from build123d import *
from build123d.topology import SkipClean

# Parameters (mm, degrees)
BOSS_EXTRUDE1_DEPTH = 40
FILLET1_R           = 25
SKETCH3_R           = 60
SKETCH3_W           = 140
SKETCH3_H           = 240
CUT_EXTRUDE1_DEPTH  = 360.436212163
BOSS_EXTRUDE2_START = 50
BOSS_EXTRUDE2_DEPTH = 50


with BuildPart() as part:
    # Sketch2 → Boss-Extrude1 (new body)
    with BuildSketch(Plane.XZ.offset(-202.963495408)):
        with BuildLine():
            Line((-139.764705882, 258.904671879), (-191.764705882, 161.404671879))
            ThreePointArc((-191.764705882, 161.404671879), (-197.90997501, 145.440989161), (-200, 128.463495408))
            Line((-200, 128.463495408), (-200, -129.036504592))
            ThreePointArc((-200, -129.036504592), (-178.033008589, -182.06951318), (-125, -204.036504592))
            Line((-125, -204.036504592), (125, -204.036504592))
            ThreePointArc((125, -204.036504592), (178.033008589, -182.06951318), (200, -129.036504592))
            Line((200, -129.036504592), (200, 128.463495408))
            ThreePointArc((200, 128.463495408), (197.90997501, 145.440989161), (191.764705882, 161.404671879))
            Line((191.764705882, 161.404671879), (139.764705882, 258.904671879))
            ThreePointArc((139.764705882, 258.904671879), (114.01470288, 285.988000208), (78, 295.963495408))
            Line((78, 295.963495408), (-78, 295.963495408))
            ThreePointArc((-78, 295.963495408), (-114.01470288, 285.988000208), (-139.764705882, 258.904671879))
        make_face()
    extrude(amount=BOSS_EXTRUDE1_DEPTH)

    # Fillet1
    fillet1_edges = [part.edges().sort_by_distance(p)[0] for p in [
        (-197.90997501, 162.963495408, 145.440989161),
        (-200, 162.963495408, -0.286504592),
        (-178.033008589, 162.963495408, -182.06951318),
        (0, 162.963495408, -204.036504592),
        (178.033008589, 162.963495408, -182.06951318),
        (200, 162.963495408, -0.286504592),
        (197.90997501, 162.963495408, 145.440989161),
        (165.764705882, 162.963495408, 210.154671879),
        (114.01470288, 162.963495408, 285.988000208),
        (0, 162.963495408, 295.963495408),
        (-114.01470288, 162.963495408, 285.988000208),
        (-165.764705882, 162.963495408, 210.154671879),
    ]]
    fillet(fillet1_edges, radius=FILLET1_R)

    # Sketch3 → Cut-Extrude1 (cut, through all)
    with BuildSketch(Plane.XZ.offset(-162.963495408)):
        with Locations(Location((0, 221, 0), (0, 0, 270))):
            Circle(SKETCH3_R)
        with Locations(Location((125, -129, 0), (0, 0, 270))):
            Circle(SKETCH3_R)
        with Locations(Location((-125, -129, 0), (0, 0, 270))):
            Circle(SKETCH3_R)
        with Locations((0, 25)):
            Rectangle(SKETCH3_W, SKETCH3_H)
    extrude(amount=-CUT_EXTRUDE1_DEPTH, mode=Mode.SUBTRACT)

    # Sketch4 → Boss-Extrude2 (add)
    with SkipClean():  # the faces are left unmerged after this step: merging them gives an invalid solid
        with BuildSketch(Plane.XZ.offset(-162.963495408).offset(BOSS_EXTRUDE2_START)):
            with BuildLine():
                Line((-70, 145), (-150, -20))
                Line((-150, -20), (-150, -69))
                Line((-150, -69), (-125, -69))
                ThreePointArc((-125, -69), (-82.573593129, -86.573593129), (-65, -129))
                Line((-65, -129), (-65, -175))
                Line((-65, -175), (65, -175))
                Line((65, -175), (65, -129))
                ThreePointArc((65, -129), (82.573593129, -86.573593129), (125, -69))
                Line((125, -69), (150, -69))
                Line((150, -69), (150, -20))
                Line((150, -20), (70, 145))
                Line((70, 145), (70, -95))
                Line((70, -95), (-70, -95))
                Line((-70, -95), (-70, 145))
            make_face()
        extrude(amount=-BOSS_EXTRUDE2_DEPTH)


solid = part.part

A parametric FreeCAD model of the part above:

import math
import FreeCAD as App
import Part
import Sketcher

V = App.Vector
Q = App.Units.Quantity


def edges_at(feature, points):
    """Names of the edges that pass closest to the given points."""
    edges = feature.Shape.Edges
    near = lambda p: min(range(len(edges)), key=lambda i: edges[i].distToShape(Part.Vertex(*p))[0])
    return sorted({f"Edge{near(p) + 1}" for p in points})

doc = App.newDocument("Part")
body = doc.addObject("PartDesign::Body", "Body")

sketch1 = body.newObject("Sketcher::SketchObject", "Sketch")
sketch1.AttachmentSupport = (doc.getObject("XZ_Plane"), [""])
sketch1.MapMode = "FlatFace"
sketch1.AttachmentOffset = App.Placement(V(0, 0, -202.963495), App.Rotation())
sketch1.addGeometry(Part.LineSegment(V(-140, 259, 0), V(-192, 161, 0)), False)
sketch1.addGeometry(Part.ArcOfCircle(Part.Circle(V(-130, 128, 0), V(0, 0, 1), 70), math.radians(152), math.radians(180)), False)
sketch1.addGeometry(Part.LineSegment(V(-200, 128, 0), V(-200, -129, 0)), False)
sketch1.addGeometry(Part.ArcOfCircle(Part.Circle(V(-125, -129, 0), V(0, 0, 1), 75), math.radians(-180), math.radians(-90)), False)
sketch1.addGeometry(Part.LineSegment(V(-125, -204, 0), V(125, -204, 0)), False)
sketch1.addGeometry(Part.ArcOfCircle(Part.Circle(V(125, -129, 0), V(0, 0, 1), 75), math.radians(-90), math.radians(0)), False)
sketch1.addGeometry(Part.LineSegment(V(200, -129, 0), V(200, 128, 0)), False)
sketch1.addGeometry(Part.ArcOfCircle(Part.Circle(V(130, 128, 0), V(0, 0, 1), 70), math.radians(0), math.radians(28)), False)
sketch1.addGeometry(Part.LineSegment(V(192, 161, 0), V(140, 259, 0)), False)
sketch1.addGeometry(Part.ArcOfCircle(Part.Circle(V(78, 226, 0), V(0, 0, 1), 70), math.radians(28), math.radians(90)), False)
sketch1.addGeometry(Part.LineSegment(V(78, 296, 0), V(-78, 296, 0)), False)
sketch1.addGeometry(Part.ArcOfCircle(Part.Circle(V(-78, 226, 0), V(0, 0, 1), 70), math.radians(90), math.radians(152)), False)
sketch1.addConstraint(Sketcher.Constraint("Tangent", 0, 2, 1, 1))
sketch1.addConstraint(Sketcher.Constraint("Tangent", 1, 2, 2, 1))
sketch1.addConstraint(Sketcher.Constraint("Tangent", 2, 2, 3, 1))
sketch1.addConstraint(Sketcher.Constraint("Tangent", 3, 2, 4, 1))
sketch1.addConstraint(Sketcher.Constraint("Tangent", 4, 2, 5, 1))
sketch1.addConstraint(Sketcher.Constraint("Tangent", 5, 2, 6, 1))
sketch1.addConstraint(Sketcher.Constraint("Tangent", 6, 2, 7, 1))
sketch1.addConstraint(Sketcher.Constraint("Tangent", 7, 2, 8, 1))
sketch1.addConstraint(Sketcher.Constraint("Tangent", 8, 2, 9, 1))
sketch1.addConstraint(Sketcher.Constraint("Tangent", 9, 2, 10, 1))
sketch1.addConstraint(Sketcher.Constraint("Tangent", 10, 2, 11, 1))
sketch1.addConstraint(Sketcher.Constraint("Tangent", 11, 2, 0, 1))
sketch1.addConstraint(Sketcher.Constraint("Vertical", 2))
sketch1.addConstraint(Sketcher.Constraint("Horizontal", 4))
sketch1.addConstraint(Sketcher.Constraint("Vertical", 6))
sketch1.addConstraint(Sketcher.Constraint("Horizontal", 10))
sketch1.addConstraint(Sketcher.Constraint("Equal", 3, 5))
sketch1.addConstraint(Sketcher.Constraint("Equal", 1, 7))
sketch1.addConstraint(Sketcher.Constraint("Equal", 7, 9))
sketch1.addConstraint(Sketcher.Constraint("Equal", 9, 11))
sketch1.addConstraint(Sketcher.Constraint("Symmetric", 1, 3, 7, 3, -2))
sketch1.addConstraint(Sketcher.Constraint("Horizontal", 0, 2, 7, 2))
sketch1.addConstraint(Sketcher.Constraint("Radius", 1, Q("70 mm")))
sketch1.addConstraint(Sketcher.Constraint("Radius", 3, Q("75 mm")))
sketch1.addConstraint(Sketcher.Constraint("DistanceX", 4, 1, 4, 2, Q("250 mm")))
sketch1.addConstraint(Sketcher.Constraint("DistanceX", 10, 2, 10, 1, Q("156 mm")))
sketch1.addConstraint(Sketcher.Constraint("DistanceY", 2, 2, 2, 1, Q("257.5 mm")))
sketch1.addConstraint(Sketcher.Constraint("DistanceY", 5, 3, 9, 3, Q("355 mm")))
sketch1.addConstraint(Sketcher.Constraint("DistanceY", -1, 1, 0, 2, Q("161.404672 mm")))
pad1 = body.newObject("PartDesign::Pad", "Pad")
pad1.Profile = sketch1
pad1.Length = 40
doc.recompute()

fillet = body.newObject("PartDesign::Fillet", "Fillet")
fillet.Base = (pad1, edges_at(pad1, [
    (-197.91, 162.963, 145.441),
    (-200, 162.963, -0.287),
    (-178.033, 162.963, -182.07),
    (0, 162.963, -204.037),
    (178.033, 162.963, -182.07),
    (200, 162.963, -0.287),
    (197.91, 162.963, 145.441),
    (165.765, 162.963, 210.155),
    (114.015, 162.963, 285.988),
    (0, 162.963, 295.963),
    (-114.015, 162.963, 285.988),
    (-165.765, 162.963, 210.155),
]))
fillet.Radius = 25

sketch2 = body.newObject("Sketcher::SketchObject", "Sketch001")
sketch2.AttachmentSupport = (doc.getObject("XZ_Plane"), [""])
sketch2.MapMode = "FlatFace"
sketch2.AttachmentOffset = App.Placement(V(0, 0, -162.963495), App.Rotation())
sketch2.addGeometry(Part.Circle(V(0, 221, 0), V(0, 0, 1), 60), False)
sketch2.addGeometry(Part.Circle(V(125, -129, 0), V(0, 0, 1), 60), False)
sketch2.addGeometry(Part.Circle(V(-125, -129, 0), V(0, 0, 1), 60), False)
sketch2.addGeometry(Part.LineSegment(V(-70, 145, 0), V(-70, -95, 0)), False)
sketch2.addGeometry(Part.LineSegment(V(-70, -95, 0), V(70, -95, 0)), False)
sketch2.addGeometry(Part.LineSegment(V(70, -95, 0), V(70, 145, 0)), False)
sketch2.addGeometry(Part.LineSegment(V(70, 145, 0), V(-70, 145, 0)), False)
sketch2.addConstraint(Sketcher.Constraint("Coincident", 3, 2, 4, 1))
sketch2.addConstraint(Sketcher.Constraint("Coincident", 4, 2, 5, 1))
sketch2.addConstraint(Sketcher.Constraint("Coincident", 5, 2, 6, 1))
sketch2.addConstraint(Sketcher.Constraint("Coincident", 6, 2, 3, 1))
sketch2.addConstraint(Sketcher.Constraint("Vertical", 3))
sketch2.addConstraint(Sketcher.Constraint("Horizontal", 4))
sketch2.addConstraint(Sketcher.Constraint("Vertical", 5))
sketch2.addConstraint(Sketcher.Constraint("Horizontal", 6))
sketch2.addConstraint(Sketcher.Constraint("Equal", 0, 1))
sketch2.addConstraint(Sketcher.Constraint("Equal", 1, 2))
sketch2.addConstraint(Sketcher.Constraint("Symmetric", 1, 3, 2, 3, -2))
sketch2.addConstraint(Sketcher.Constraint("PointOnObject", 0, 3, -2))
sketch2.addConstraint(Sketcher.Constraint("Diameter", 0, Q("120 mm")))
sketch2.addConstraint(Sketcher.Constraint("DistanceX", 4, 1, 4, 2, Q("140 mm")))
sketch2.addConstraint(Sketcher.Constraint("DistanceY", 3, 2, 3, 1, Q("240 mm")))
sketch2.addConstraint(Sketcher.Constraint("DistanceY", -1, 1, 0, 3, Q("221 mm")))
sketch2.addConstraint(Sketcher.Constraint("DistanceX", -1, 1, 1, 3, Q("125 mm")))
sketch2.addConstraint(Sketcher.Constraint("DistanceY", 1, 3, -1, 1, Q("129 mm")))
sketch2.addConstraint(Sketcher.Constraint("DistanceX", 3, 2, -1, 1, Q("70 mm")))
sketch2.addConstraint(Sketcher.Constraint("DistanceY", 3, 2, -1, 1, Q("95 mm")))
pocket1 = body.newObject("PartDesign::Pocket", "Pocket")
pocket1.Profile = sketch2
pocket1.Type = "ThroughAll"

sketch3 = body.newObject("Sketcher::SketchObject", "Sketch002")
sketch3.AttachmentSupport = (doc.getObject("XZ_Plane"), [""])
sketch3.MapMode = "FlatFace"
sketch3.AttachmentOffset = App.Placement(V(0, 0, -112.963495), App.Rotation())
sketch3.addGeometry(Part.LineSegment(V(-70, 145, 0), V(-150, -20, 0)), False)
sketch3.addGeometry(Part.LineSegment(V(-150, -20, 0), V(-150, -69, 0)), False)
sketch3.addGeometry(Part.LineSegment(V(-150, -69, 0), V(-125, -69, 0)), False)
sketch3.addGeometry(Part.ArcOfCircle(Part.Circle(V(-125, -129, 0), V(0, 0, 1), 60), math.radians(0), math.radians(90)), False)
sketch3.addGeometry(Part.LineSegment(V(-65, -129, 0), V(-65, -175, 0)), False)
sketch3.addGeometry(Part.LineSegment(V(-65, -175, 0), V(65, -175, 0)), False)
sketch3.addGeometry(Part.LineSegment(V(65, -175, 0), V(65, -129, 0)), False)
sketch3.addGeometry(Part.ArcOfCircle(Part.Circle(V(125, -129, 0), V(0, 0, 1), 60), math.radians(90), math.radians(180)), False)
sketch3.addGeometry(Part.LineSegment(V(125, -69, 0), V(150, -69, 0)), False)
sketch3.addGeometry(Part.LineSegment(V(150, -69, 0), V(150, -20, 0)), False)
sketch3.addGeometry(Part.LineSegment(V(150, -20, 0), V(70, 145, 0)), False)
sketch3.addGeometry(Part.LineSegment(V(70, 145, 0), V(70, -95, 0)), False)
sketch3.addGeometry(Part.LineSegment(V(70, -95, 0), V(-70, -95, 0)), False)
sketch3.addGeometry(Part.LineSegment(V(-70, -95, 0), V(-70, 145, 0)), False)
sketch3.addConstraint(Sketcher.Constraint("Coincident", 0, 2, 1, 1))
sketch3.addConstraint(Sketcher.Constraint("Coincident", 1, 2, 2, 1))
sketch3.addConstraint(Sketcher.Constraint("Tangent", 2, 2, 3, 2))
sketch3.addConstraint(Sketcher.Constraint("Tangent", 3, 1, 4, 1))
sketch3.addConstraint(Sketcher.Constraint("Coincident", 4, 2, 5, 1))
sketch3.addConstraint(Sketcher.Constraint("Coincident", 5, 2, 6, 1))
sketch3.addConstraint(Sketcher.Constraint("Tangent", 6, 2, 7, 2))
sketch3.addConstraint(Sketcher.Constraint("Tangent", 7, 1, 8, 1))
sketch3.addConstraint(Sketcher.Constraint("Coincident", 8, 2, 9, 1))
sketch3.addConstraint(Sketcher.Constraint("Coincident", 9, 2, 10, 1))
sketch3.addConstraint(Sketcher.Constraint("Coincident", 10, 2, 11, 1))
sketch3.addConstraint(Sketcher.Constraint("Coincident", 11, 2, 12, 1))
sketch3.addConstraint(Sketcher.Constraint("Coincident", 12, 2, 13, 1))
sketch3.addConstraint(Sketcher.Constraint("Coincident", 13, 2, 0, 1))
sketch3.addConstraint(Sketcher.Constraint("Vertical", 1))
sketch3.addConstraint(Sketcher.Constraint("Horizontal", 2))
sketch3.addConstraint(Sketcher.Constraint("Vertical", 4))
sketch3.addConstraint(Sketcher.Constraint("Horizontal", 5))
sketch3.addConstraint(Sketcher.Constraint("Vertical", 6))
sketch3.addConstraint(Sketcher.Constraint("Horizontal", 8))
sketch3.addConstraint(Sketcher.Constraint("Vertical", 9))
sketch3.addConstraint(Sketcher.Constraint("Vertical", 11))
sketch3.addConstraint(Sketcher.Constraint("Horizontal", 12))
sketch3.addConstraint(Sketcher.Constraint("Vertical", 13))
sketch3.addConstraint(Sketcher.Constraint("Equal", 3, 7))
sketch3.addConstraint(Sketcher.Constraint("Symmetric", 3, 3, 7, 3, -2))
sketch3.addConstraint(Sketcher.Constraint("Symmetric", 0, 2, 9, 2, -2))
sketch3.addConstraint(Sketcher.Constraint("Symmetric", 10, 2, 13, 2, -2))
sketch3.addConstraint(Sketcher.Constraint("Radius", 3, Q("60 mm")))
sketch3.addConstraint(Sketcher.Constraint("DistanceX", 2, 1, 2, 2, Q("25 mm")))
sketch3.addConstraint(Sketcher.Constraint("DistanceX", 5, 1, 5, 2, Q("130 mm")))
sketch3.addConstraint(Sketcher.Constraint("DistanceX", 12, 2, 12, 1, Q("140 mm")))
sketch3.addConstraint(Sketcher.Constraint("DistanceY", 1, 2, 1, 1, Q("49 mm")))
sketch3.addConstraint(Sketcher.Constraint("DistanceY", 4, 2, 4, 1, Q("46 mm")))
sketch3.addConstraint(Sketcher.Constraint("DistanceY", 11, 2, 11, 1, Q("240 mm")))
sketch3.addConstraint(Sketcher.Constraint("DistanceY", 3, 3, -1, 1, Q("129 mm")))
sketch3.addConstraint(Sketcher.Constraint("DistanceY", -1, 1, 10, 2, Q("145 mm")))
pad2 = body.newObject("PartDesign::Pad", "Pad001")
pad2.Profile = sketch3
pad2.Length = 50
pad2.Reversed = True

doc.recompute()
